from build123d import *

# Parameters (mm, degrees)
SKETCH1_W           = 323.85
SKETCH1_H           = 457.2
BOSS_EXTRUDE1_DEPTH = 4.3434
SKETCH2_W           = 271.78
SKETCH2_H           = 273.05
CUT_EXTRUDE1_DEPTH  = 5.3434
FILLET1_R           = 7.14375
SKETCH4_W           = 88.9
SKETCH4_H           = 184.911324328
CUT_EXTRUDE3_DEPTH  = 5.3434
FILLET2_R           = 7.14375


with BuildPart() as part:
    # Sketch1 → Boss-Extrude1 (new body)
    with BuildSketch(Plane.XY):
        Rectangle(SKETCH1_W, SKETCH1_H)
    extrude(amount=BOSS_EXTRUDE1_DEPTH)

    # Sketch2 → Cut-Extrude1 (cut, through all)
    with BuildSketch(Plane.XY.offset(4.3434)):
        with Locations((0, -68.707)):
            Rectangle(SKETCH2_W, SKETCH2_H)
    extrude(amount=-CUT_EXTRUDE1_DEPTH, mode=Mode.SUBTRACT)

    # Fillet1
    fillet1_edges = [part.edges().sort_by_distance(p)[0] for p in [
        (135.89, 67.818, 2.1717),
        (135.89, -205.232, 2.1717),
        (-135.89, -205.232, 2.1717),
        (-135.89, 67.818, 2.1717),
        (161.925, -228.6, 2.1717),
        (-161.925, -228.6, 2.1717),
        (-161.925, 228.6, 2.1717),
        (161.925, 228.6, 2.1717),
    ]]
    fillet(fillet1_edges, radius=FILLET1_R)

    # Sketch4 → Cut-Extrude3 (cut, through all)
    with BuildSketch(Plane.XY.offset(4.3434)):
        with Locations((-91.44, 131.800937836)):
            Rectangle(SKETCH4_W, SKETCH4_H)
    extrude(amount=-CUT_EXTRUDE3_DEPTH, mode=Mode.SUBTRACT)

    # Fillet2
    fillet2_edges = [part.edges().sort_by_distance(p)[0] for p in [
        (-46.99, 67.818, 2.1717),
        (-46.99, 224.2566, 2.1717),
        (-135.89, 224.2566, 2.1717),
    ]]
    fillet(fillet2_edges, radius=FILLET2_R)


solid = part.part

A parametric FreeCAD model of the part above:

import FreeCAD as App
import Part
import Sketcher
Q = App.Units.Quantity


def edges_at(feature, points):
    """Names of the edges that pass closest to the given points."""
    edges = feature.Shape.Edges
    near = lambda p: min(range(len(edges)), key=lambda i: edges[i].distToShape(Part.Vertex(*p))[0])
    return sorted({f"Edge{near(p) + 1}" for p in points})


def add_polygon(sketch, points):
    """Adds a closed chain of lines whose ends are joined by coincident constraints."""
    first, n = sketch.GeometryCount, len(points)
    for a, b in zip(points, points[1:] + points[:1]):
        sketch.addGeometry(Part.LineSegment(App.Vector(*a, 0), App.Vector(*b, 0)), False)
    for i in range(n):
        sketch.addConstraint(Sketcher.Constraint("Coincident", first + i, 2, first + (i + 1) % n, 1))

doc = App.newDocument("Part")
body = doc.addObject("PartDesign::Body", "Body")

sketch1 = body.newObject("Sketcher::SketchObject", "Sketch")
sketch1.AttachmentSupport = (doc.getObject("XY_Plane"), [""])
sketch1.MapMode = "FlatFace"
add_polygon(sketch1, [(-161.925, 228.6), (-161.925, -228.6), (161.925, -228.6), (161.925, 228.6)])
sketch1.addConstraint([
    Sketcher.Constraint("Vertical", 0),
    Sketcher.Constraint("Horizontal", 1),
    Sketcher.Constraint("Vertical", 2),
    Sketcher.Constraint("Horizontal", 3),
    Sketcher.Constraint("Symmetric", 0, 2, 2, 2, -1, 1),
    Sketcher.Constraint("DistanceY", 0, 2, 0, 1, Q("18 in")),
    Sketcher.Constraint("DistanceX", 1, 1, 1, 2, Q("12.75 in")),
])
pad1 = body.newObject("PartDesign::Pad", "Pad")
pad1.Profile = sketch1
pad1.Length = Q("0.171 in")

sketch2 = body.newObject("Sketcher::SketchObject", "Sketch001")
sketch2.AttachmentSupport = (doc.getObject("XY_Plane"), [""])
sketch2.MapMode = "FlatFace"
sketch2.AttachmentOffset = App.Placement(App.Vector(0, 0, 0.171 * 25.4), App.Rotation())
add_polygon(sketch2, [(-135.89, 67.818), (-135.89, -205.232), (135.89, -205.232), (135.89, 67.818)])
sketch2.addConstraint([
    Sketcher.Constraint("Vertical", 0),
    Sketcher.Constraint("Horizontal", 1),
    Sketcher.Constraint("Vertical", 2),
    Sketcher.Constraint("Horizontal", 3),
    Sketcher.Constraint("DistanceX", 1, 1, 1, 2, Q("10.7 in")),
    Sketcher.Constraint("DistanceY", 0, 2, 0, 1, Q("10.75 in")),
    Sketcher.Constraint("DistanceX", 0, 2, -1, 1, Q("5.35 in")),
    Sketcher.Constraint("DistanceY", 0, 2, -1, 1, Q("8.08 in")),
])
pocket1 = body.newObject("PartDesign::Pocket", "Pocket")
pocket1.Profile = sketch2
pocket1.Type = "ThroughAll"
doc.recompute()

fillet = body.newObject("PartDesign::Fillet", "Fillet")
fillet.Base = (pocket1, edges_at(pocket1, [
    (135.89, 67.818, 2.172),
    (135.89, -205.232, 2.172),
    (-135.89, -205.232, 2.172),
    (-135.89, 67.818, 2.172),
    (161.925, -228.6, 2.172),
    (-161.925, -228.6, 2.172),
    (-161.925, 228.6, 2.172),
    (161.925, 228.6, 2.172),
]))
fillet.Radius = Q("0.28125 in")

sketch3 = body.newObject("Sketcher::SketchObject", "Sketch002")
sketch3.AttachmentSupport = (doc.getObject("XY_Plane"), [""])
sketch3.MapMode = "FlatFace"
sketch3.AttachmentOffset = App.Placement(App.Vector(0, 0, 0.171 * 25.4), App.Rotation())
add_polygon(sketch3, [(-135.89, 224.2566), (-135.89, 39.345276), (-46.99, 39.345276), (-46.99, 224.2566)])
sketch3.addConstraint([
    Sketcher.Constraint("Vertical", 0),
    Sketcher.Constraint("Horizontal", 1),
    Sketcher.Constraint("Vertical", 2),
    Sketcher.Constraint("Horizontal", 3),
    Sketcher.Constraint("DistanceX", 1, 1, 1, 2, Q("3.5 in")),
    Sketcher.Constraint("DistanceX", 0, 2, -1, 1, Q("5.35 in")),
    Sketcher.Constraint("DistanceY", -1, 1, 2, 2, Q("8.829 in")),
    Sketcher.Constraint("DistanceY", 0, 2, 0, 1, Q("184.911324 mm")),
])
pocket2 = body.newObject("PartDesign::Pocket", "Pocket001")
pocket2.Profile = sketch3
pocket2.Type = "ThroughAll"
doc.recompute()

fillet2 = body.newObject("PartDesign::Fillet", "Fillet001")
fillet2.Base = (pocket2, edges_at(pocket2, [(-46.99, 67.818, 2.172), (-46.99, 224.257, 2.172), (-135.89, 224.257, 2.172)]))
fillet2.Radius = Q("0.28125 in")

doc.recompute()
